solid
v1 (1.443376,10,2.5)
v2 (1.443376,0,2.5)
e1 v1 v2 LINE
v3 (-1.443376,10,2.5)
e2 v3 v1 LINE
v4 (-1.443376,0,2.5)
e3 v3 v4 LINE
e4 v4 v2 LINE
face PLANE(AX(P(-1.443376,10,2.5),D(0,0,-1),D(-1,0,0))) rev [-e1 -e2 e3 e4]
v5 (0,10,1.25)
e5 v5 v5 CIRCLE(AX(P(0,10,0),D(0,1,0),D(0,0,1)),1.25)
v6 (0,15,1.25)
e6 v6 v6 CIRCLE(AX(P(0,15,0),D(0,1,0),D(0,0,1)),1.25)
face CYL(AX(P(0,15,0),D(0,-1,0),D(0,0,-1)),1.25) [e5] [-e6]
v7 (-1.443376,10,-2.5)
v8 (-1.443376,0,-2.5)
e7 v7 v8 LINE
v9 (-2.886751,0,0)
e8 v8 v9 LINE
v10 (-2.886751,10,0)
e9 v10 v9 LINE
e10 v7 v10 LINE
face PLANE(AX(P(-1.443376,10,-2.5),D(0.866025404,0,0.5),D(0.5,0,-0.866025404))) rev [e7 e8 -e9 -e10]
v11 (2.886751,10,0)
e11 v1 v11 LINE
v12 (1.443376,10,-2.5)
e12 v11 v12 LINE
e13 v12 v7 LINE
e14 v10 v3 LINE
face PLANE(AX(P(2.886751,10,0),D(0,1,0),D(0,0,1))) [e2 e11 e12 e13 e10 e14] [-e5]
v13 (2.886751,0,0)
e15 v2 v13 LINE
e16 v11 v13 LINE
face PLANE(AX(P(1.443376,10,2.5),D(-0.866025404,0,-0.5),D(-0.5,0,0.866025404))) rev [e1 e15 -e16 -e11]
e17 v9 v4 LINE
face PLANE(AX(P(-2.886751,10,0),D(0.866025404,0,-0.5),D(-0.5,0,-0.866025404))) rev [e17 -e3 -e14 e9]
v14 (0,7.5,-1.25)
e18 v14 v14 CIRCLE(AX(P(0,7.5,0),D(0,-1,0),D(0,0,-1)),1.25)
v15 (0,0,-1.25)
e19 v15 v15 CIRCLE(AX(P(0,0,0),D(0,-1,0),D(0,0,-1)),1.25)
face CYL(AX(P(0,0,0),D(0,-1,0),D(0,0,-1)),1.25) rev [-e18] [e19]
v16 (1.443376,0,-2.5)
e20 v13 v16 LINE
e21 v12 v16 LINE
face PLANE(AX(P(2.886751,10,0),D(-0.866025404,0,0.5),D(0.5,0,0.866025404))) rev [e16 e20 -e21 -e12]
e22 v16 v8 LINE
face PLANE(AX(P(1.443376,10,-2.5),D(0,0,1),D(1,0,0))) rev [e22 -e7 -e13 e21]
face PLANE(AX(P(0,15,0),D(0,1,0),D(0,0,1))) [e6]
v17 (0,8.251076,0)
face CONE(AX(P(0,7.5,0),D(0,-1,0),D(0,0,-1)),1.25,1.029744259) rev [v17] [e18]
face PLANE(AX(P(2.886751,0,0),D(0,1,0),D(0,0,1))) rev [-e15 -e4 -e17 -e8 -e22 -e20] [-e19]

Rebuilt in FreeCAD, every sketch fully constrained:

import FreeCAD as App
import Part
import Sketcher
Q = App.Units.Quantity

doc = App.newDocument("Part")
body = doc.addObject("PartDesign::Body", "Body")

# Sketch on XZ plane
sketch1 = doc.addObject("Sketcher::SketchObject", "Sketch")
body.addObject(sketch1)
sketch1.AttachmentSupport = (doc.XZ_Plane, [""])
sketch1.MapMode = "FlatFace"
sketch1.addGeometry([
    Part.LineSegment(App.Vector(2.9, 0, 0), App.Vector(1.4, -2.5, 0)),  # 0
    Part.LineSegment(App.Vector(1.4, -2.5, 0), App.Vector(-1.4, -2.5, 0)),  # 1
    Part.LineSegment(App.Vector(-1.4, -2.5, 0), App.Vector(-2.9, 0, 0)),  # 2
    Part.LineSegment(App.Vector(-2.9, 0, 0), App.Vector(-1.4, 2.5, 0)),  # 3
    Part.LineSegment(App.Vector(-1.4, 2.5, 0), App.Vector(1.4, 2.5, 0)),  # 4
    Part.LineSegment(App.Vector(1.4, 2.5, 0), App.Vector(2.9, 0, 0)),  # 5
], False)
sketch1.addConstraint([
    Sketcher.Constraint("Coincident", 0, 2, 1, 1),
    Sketcher.Constraint("Coincident", 1, 2, 2, 1),
    Sketcher.Constraint("Coincident", 2, 2, 3, 1),
    Sketcher.Constraint("Coincident", 3, 2, 4, 1),
    Sketcher.Constraint("Coincident", 4, 2, 5, 1),
    Sketcher.Constraint("Coincident", 5, 2, 0, 1),
    Sketcher.Constraint("Horizontal", 1),
    Sketcher.Constraint("Horizontal", 4),
    Sketcher.Constraint("Symmetric", 0, 2, 3, 2, -1, 1),
    Sketcher.Constraint("Symmetric", 2, 2, 5, 2, -1, 1),
    Sketcher.Constraint("PointOnObject", 2, 2, -1),
    Sketcher.Constraint("Parallel", 2, 5),
    Sketcher.Constraint("Vertical", 1, 2, 3, 2),
    Sketcher.Constraint("Angle", 0, Q("-120 deg")),
    Sketcher.Constraint("DistanceY", 1, 2, 3, 2, 5.0),
    Sketcher.Constraint("DistanceX", 1, 2, 1, 1, 2.886751),
])
pad1 = doc.addObject("PartDesign::Pad", "Pad")
body.addObject(pad1)
pad1.Profile = sketch1
pad1.Length = 10
pad1.Reversed = True

# Sketch on XZ plane
sketch2 = doc.addObject("Sketcher::SketchObject", "Sketch001")
body.addObject(sketch2)
sketch2.AttachmentSupport = (doc.XZ_Plane, [""])
sketch2.MapMode = "FlatFace"
sketch2.addGeometry(Part.Circle(App.Vector(0, 0, 0), App.Vector(0, 0, 1), 1.2), False)
sketch2.addConstraint([
    Sketcher.Constraint("Coincident", 0, 3, -1, 1),
    Sketcher.Constraint("Diameter", 0, 2.5),
])
doc.recompute()
hole = doc.addObject("PartDesign::Hole", "Hole")
body.addObject(hole)
hole.Profile = sketch2
hole.ThreadType = "None"
hole.Diameter = 2.5
hole.DepthType = "Dimension"
hole.Depth = 7.5
hole.DrillPoint = "Angled"
hole.DrillPointAngle = 118

# Sketch on XZ plane
sketch3 = doc.addObject("Sketcher::SketchObject", "Sketch002")
body.addObject(sketch3)
sketch3.AttachmentSupport = (doc.XZ_Plane, [""])
sketch3.MapMode = "FlatFace"
sketch3.AttachmentOffset = App.Placement(App.Vector(0, 0, -15), App.Rotation())
sketch3.addGeometry(Part.Circle(App.Vector(0, 0, 0), App.Vector(0, 0, 1), 1.2), False)
sketch3.addConstraint([
    Sketcher.Constraint("Coincident", 0, 3, -1, 1),
    Sketcher.Constraint("Diameter", 0, 2.5),
])
pad2 = doc.addObject("PartDesign::Pad", "Pad001")
body.addObject(pad2)
pad2.Profile = sketch3
pad2.Length = 5

doc.recompute()
